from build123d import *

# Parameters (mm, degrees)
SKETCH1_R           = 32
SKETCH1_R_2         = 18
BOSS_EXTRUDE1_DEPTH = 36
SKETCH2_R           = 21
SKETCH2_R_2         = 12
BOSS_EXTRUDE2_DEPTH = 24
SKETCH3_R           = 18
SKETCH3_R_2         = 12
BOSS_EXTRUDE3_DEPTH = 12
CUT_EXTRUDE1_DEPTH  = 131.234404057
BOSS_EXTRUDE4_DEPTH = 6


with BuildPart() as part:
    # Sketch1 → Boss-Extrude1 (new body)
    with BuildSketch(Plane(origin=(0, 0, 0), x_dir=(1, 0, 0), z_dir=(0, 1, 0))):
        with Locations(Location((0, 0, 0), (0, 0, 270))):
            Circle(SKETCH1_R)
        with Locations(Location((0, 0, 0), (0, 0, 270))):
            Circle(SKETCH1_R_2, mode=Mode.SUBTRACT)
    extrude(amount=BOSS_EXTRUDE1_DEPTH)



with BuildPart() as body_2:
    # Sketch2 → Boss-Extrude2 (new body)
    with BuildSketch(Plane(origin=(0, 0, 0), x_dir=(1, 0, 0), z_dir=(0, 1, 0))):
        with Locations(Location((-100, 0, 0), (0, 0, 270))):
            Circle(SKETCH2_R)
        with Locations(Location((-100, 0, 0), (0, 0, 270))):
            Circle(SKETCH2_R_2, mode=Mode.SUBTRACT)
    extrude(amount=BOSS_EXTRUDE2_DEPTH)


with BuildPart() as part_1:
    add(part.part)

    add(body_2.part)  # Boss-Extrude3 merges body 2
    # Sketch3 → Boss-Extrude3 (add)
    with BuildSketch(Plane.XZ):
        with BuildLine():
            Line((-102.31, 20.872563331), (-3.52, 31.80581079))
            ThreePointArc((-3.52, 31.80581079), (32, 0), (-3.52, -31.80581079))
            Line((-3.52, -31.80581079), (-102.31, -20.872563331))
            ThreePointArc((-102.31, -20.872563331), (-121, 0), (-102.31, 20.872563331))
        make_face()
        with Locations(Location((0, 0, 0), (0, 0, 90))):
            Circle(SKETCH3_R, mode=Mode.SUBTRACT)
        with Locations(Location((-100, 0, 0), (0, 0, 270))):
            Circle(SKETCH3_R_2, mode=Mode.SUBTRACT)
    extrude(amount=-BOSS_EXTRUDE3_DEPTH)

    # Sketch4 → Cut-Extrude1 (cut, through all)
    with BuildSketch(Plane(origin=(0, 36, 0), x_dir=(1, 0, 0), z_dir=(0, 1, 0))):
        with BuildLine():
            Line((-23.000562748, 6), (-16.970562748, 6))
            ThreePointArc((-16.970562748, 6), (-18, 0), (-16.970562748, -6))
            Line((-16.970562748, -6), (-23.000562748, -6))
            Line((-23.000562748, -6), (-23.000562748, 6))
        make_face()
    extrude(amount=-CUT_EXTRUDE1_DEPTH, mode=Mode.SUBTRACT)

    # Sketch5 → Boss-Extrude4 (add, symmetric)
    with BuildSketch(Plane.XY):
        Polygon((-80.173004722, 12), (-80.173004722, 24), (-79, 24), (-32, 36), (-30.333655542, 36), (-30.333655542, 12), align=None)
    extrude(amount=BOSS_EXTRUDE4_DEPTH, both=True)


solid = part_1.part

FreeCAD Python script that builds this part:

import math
import FreeCAD as App
import Part
import Sketcher
Q = App.Units.Quantity


def add_polygon(sketch, points):
    """Adds a closed chain of lines whose ends are joined by coincident constraints."""
    first, n = sketch.GeometryCount, len(points)
    for a, b in zip(points, points[1:] + points[:1]):
        sketch.addGeometry(Part.LineSegment(App.Vector(*a, 0), App.Vector(*b, 0)), False)
    for i in range(n):
        sketch.addConstraint(Sketcher.Constraint("Coincident", first + i, 2, first + (i + 1) % n, 1))

doc = App.newDocument("Part")
body = doc.addObject("PartDesign::Body", "Body")

# Sketch on XZ plane
sketch1 = body.newObject("Sketcher::SketchObject", "Sketch")
sketch1.AttachmentSupport = (doc.getObject("XZ_Plane"), [""])
sketch1.MapMode = "FlatFace"
sketch1.addGeometry([
    Part.Circle(App.Vector(0, 0, 0), App.Vector(0, 0, 1), 32),
    Part.Circle(App.Vector(0, 0, 0), App.Vector(0, 0, 1), 18),
], False)
sketch1.addConstraint([
    Sketcher.Constraint("Coincident", 0, 3, -1, 1),
    Sketcher.Constraint("Coincident", 1, 3, -1, 1),
    Sketcher.Constraint("Diameter", 0, Q("64 mm")),
    Sketcher.Constraint("Diameter", 1, Q("36 mm")),
])
pad1 = body.newObject("PartDesign::Pad", "Pad")
pad1.Profile = sketch1
pad1.Length = 36
pad1.Reversed = True
body2 = doc.addObject("PartDesign::Body", "Body001")

# Sketch on XZ plane
sketch2 = body2.newObject("Sketcher::SketchObject", "Sketch001")
sketch2.AttachmentSupport = (doc.getObject("XZ_Plane001"), [""])
sketch2.MapMode = "FlatFace"
sketch2.addGeometry([
    Part.Circle(App.Vector(-100, 0, 0), App.Vector(0, 0, 1), 21),
    Part.Circle(App.Vector(-100, 0, 0), App.Vector(0, 0, 1), 12),
], False)
sketch2.addConstraint([
    Sketcher.Constraint("Coincident", 1, 3, 0, 3),
    Sketcher.Constraint("PointOnObject", 0, 3, -1),
    Sketcher.Constraint("Diameter", 0, Q("42 mm")),
    Sketcher.Constraint("Diameter", 1, Q("24 mm")),
    Sketcher.Constraint("DistanceX", 0, 3, -1, 1, Q("100 mm")),
])
pad2 = body2.newObject("PartDesign::Pad", "Pad001")
pad2.Profile = sketch2
pad2.Length = 24
pad2.Reversed = True
body.AllowCompound = True
doc.recompute()

boolean = body.newObject("PartDesign::Boolean", "Boolean")
boolean.Type = "Fuse"
boolean.addObjects([body2])

# Sketch on XZ plane
sketch3 = body.newObject("Sketcher::SketchObject", "Sketch002")
sketch3.AttachmentSupport = (doc.getObject("XZ_Plane"), [""])
sketch3.MapMode = "FlatFace"
sketch3.addGeometry([
    Part.LineSegment(App.Vector(-3.52, 31.805811, 0), App.Vector(-102.31, 20.872563, 0)),  # 0
    Part.ArcOfCircle(Part.Circle(App.Vector(-100, 0, 0), App.Vector(0, 0, 1), 21), math.radians(96.315316), math.radians(263.684684)),  # 1
    Part.LineSegment(App.Vector(-102.31, -20.872563, 0), App.Vector(-3.52, -31.805811, 0)),  # 2
    Part.ArcOfCircle(Part.Circle(App.Vector(0, 0, 0), App.Vector(0, 0, 1), 32), math.radians(-96.315316), math.radians(96.315316)),  # 3
    Part.Circle(App.Vector(0, 0, 0), App.Vector(0, 0, 1), 18),  # 4
    Part.Circle(App.Vector(-100, 0, 0), App.Vector(0, 0, 1), 12),  # 5
], False)
sketch3.addConstraint([
    Sketcher.Constraint("Tangent", 0, 2, 1, 1),
    Sketcher.Constraint("Tangent", 1, 2, 2, 1),
    Sketcher.Constraint("Tangent", 2, 2, 3, 1),
    Sketcher.Constraint("Tangent", 3, 2, 0, 1),
    Sketcher.Constraint("Coincident", 3, 3, -1, 1),
    Sketcher.Constraint("Coincident", 4, 3, -1, 1),
    Sketcher.Constraint("Coincident", 5, 3, 1, 3),
    Sketcher.Constraint("PointOnObject", 1, 3, -1),
    Sketcher.Constraint("Diameter", 4, Q("36 mm")),
    Sketcher.Constraint("Diameter", 5, Q("24 mm")),
    Sketcher.Constraint("Radius", 1, Q("21 mm")),
    Sketcher.Constraint("Radius", 3, Q("32 mm")),
    Sketcher.Constraint("DistanceX", 1, 3, -1, 1, Q("100 mm")),
])
pad3 = body.newObject("PartDesign::Pad", "Pad002")
pad3.Profile = sketch3
pad3.Length = 12
pad3.Reversed = True

# Sketch on XZ plane
sketch4 = body.newObject("Sketcher::SketchObject", "Sketch003")
sketch4.AttachmentSupport = (doc.getObject("XZ_Plane"), [""])
sketch4.MapMode = "FlatFace"
sketch4.AttachmentOffset = App.Placement(App.Vector(0, 0, -36), App.Rotation())
sketch4.addGeometry([
    Part.LineSegment(App.Vector(-16.970563, -6, 0), App.Vector(-23.000563, -6, 0)),
    Part.LineSegment(App.Vector(-23.000563, -6, 0), App.Vector(-23.000563, 6, 0)),
    Part.LineSegment(App.Vector(-23.000563, 6, 0), App.Vector(-16.970563, 6, 0)),
    Part.ArcOfCircle(Part.Circle(App.Vector(0, 0, 0), App.Vector(0, 0, 1), 18), math.radians(160.528779), math.radians(199.471221)),
], False)
sketch4.addConstraint([
    Sketcher.Constraint("Coincident", 0, 2, 1, 1),
    Sketcher.Constraint("Coincident", 1, 2, 2, 1),
    Sketcher.Constraint("Coincident", 2, 2, 3, 1),
    Sketcher.Constraint("Coincident", 3, 2, 0, 1),
    Sketcher.Constraint("Horizontal", 0),
    Sketcher.Constraint("Vertical", 1),
    Sketcher.Constraint("Horizontal", 2),
    Sketcher.Constraint("Coincident", 3, 3, -1, 1),
    Sketcher.Constraint("Vertical", 2, 2, 3, 2),
    Sketcher.Constraint("Radius", 3, Q("18 mm")),
    Sketcher.Constraint("DistanceY", 1, 1, 1, 2, Q("12 mm")),
    Sketcher.Constraint("DistanceX", 0, 2, 0, 1, Q("6.03 mm")),
])
pocket1 = body.newObject("PartDesign::Pocket", "Pocket")
pocket1.Profile = sketch4
pocket1.Type = "ThroughAll"
pocket1.Reversed = True

# Sketch on XY plane
sketch5 = body.newObject("Sketcher::SketchObject", "Sketch004")
sketch5.AttachmentSupport = (doc.getObject("XY_Plane"), [""])
sketch5.MapMode = "FlatFace"
add_polygon(sketch5, [(-80.173005, 24), (-80.173005, 12), (-30.333656, 12), (-30.333656, 36), (-32, 36), (-79, 24)])  # lines 0-5
sketch5.addConstraint([
    Sketcher.Constraint("Vertical", 0),
    Sketcher.Constraint("Horizontal", 1),
    Sketcher.Constraint("Vertical", 2),
    Sketcher.Constraint("Horizontal", 3),
    Sketcher.Constraint("Horizontal", 5),
    Sketcher.Constraint("DistanceY", 0, 2, 0, 1, Q("12 mm")),
    Sketcher.Constraint("DistanceY", 2, 1, 2, 2, Q("24 mm")),
    Sketcher.Constraint("DistanceY", -1, 1, 0, 2, Q("12 mm")),
    Sketcher.Constraint("DistanceX", 3, 2, -1, 1, Q("32 mm")),
    Sketcher.Constraint("DistanceX", 4, 2, -1, 1, Q("79 mm")),
    Sketcher.Constraint("DistanceX", 1, 1, 1, 2, Q("49.839349 mm")),
    Sketcher.Constraint("DistanceX", 3, 2, 3, 1, Q("1.666344 mm")),
])
pad4 = body.newObject("PartDesign::Pad", "Pad003")
pad4.Profile = sketch5
pad4.Length = 12
pad4.Midplane = True

doc.recompute()
